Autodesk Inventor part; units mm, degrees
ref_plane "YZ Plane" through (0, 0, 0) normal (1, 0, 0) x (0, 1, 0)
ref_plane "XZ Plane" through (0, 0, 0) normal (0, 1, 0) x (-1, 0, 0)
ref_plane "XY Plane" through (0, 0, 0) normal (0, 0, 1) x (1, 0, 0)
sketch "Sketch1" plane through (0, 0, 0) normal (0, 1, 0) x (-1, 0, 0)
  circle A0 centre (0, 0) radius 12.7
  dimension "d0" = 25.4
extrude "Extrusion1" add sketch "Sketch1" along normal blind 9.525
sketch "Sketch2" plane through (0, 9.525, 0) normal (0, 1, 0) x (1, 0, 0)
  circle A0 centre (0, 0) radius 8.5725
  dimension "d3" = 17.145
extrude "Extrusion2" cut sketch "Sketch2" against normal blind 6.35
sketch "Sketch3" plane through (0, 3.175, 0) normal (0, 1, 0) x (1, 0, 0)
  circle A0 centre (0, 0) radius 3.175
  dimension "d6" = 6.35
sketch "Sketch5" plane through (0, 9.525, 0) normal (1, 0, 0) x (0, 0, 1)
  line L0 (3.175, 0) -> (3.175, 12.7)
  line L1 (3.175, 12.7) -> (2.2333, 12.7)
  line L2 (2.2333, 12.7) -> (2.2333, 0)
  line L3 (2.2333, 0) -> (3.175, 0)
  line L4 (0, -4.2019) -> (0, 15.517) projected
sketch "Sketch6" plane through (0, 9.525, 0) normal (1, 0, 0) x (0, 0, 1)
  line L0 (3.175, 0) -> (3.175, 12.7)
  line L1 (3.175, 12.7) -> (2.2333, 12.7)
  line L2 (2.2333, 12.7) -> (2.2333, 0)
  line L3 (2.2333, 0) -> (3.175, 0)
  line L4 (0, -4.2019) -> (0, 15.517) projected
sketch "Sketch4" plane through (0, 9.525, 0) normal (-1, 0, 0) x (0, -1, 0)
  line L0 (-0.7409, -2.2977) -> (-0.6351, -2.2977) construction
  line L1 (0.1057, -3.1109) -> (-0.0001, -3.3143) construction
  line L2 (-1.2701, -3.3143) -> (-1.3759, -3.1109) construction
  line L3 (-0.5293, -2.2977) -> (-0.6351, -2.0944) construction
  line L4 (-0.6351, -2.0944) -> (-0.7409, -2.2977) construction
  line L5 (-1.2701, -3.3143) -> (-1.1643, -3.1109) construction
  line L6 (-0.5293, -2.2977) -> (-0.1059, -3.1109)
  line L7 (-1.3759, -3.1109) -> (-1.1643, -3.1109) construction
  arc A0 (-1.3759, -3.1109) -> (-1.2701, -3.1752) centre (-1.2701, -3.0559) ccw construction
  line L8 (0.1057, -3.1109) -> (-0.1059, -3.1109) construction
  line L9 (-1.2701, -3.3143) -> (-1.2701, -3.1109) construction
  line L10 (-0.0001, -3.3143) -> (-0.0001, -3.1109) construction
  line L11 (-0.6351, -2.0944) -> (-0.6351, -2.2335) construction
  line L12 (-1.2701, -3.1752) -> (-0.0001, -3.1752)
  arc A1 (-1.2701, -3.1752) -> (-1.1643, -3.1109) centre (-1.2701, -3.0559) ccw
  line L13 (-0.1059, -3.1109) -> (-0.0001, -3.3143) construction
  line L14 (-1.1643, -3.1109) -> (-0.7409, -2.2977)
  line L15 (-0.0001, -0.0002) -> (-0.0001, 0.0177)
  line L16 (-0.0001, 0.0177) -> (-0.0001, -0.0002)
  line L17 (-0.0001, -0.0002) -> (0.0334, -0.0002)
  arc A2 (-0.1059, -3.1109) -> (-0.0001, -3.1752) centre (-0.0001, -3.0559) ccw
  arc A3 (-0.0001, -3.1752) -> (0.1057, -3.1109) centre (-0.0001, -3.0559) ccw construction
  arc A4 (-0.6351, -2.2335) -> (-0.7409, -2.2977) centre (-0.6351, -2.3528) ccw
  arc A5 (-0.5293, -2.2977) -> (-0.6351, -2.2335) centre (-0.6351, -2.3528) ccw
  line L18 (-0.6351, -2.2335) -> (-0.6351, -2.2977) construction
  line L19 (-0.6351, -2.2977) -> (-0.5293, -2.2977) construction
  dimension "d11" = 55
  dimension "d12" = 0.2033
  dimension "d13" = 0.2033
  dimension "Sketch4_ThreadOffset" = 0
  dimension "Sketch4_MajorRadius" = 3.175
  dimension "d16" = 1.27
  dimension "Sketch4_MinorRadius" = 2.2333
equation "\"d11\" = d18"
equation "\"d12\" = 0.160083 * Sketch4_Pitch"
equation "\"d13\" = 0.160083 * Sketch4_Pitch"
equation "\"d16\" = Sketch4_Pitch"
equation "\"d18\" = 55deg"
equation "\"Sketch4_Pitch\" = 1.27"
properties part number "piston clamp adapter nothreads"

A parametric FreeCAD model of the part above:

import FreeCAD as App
import Part
import Sketcher

V = App.Vector
Q = App.Units.Quantity

doc = App.newDocument("Part")
params = doc.addObject("Spreadsheet::Sheet", "Params")
for row, (alias, value) in enumerate([
    ("sketch1_diameter", "1 in"),
    ("pad1_length", "0.375 in"),
    ("sketch2_diameter", "0.675 in"),
    ("pocket1_length", "0.25 in"),
], start=1):
    params.set(f"A{row}", alias)
    params.set(f"B{row}", "=" + value)
    params.setAlias(f"B{row}", alias)

body = doc.addObject("PartDesign::Body", "Body")

# Sketch on XZ plane
sketch1 = body.newObject("Sketcher::SketchObject", "Sketch")
sketch1.AttachmentSupport = (doc.getObject("XZ_Plane"), [""])
sketch1.MapMode = "FlatFace"
sketch1.addGeometry(Part.Circle(V(0, 0, 0), V(0, 0, 1), 13), False)
sketch1.addConstraint([
    Sketcher.Constraint("Coincident", 0, 3, -1, 1),
    Sketcher.Constraint("Diameter", 0, Q("1 in")),
])
sketch1.setExpression("Constraints[1]", "Params.sketch1_diameter")
pad1 = body.newObject("PartDesign::Pad", "Pad")
pad1.Profile = sketch1
pad1.setExpression("Length", "Params.pad1_length")
pad1.Reversed = True

# Sketch on XZ plane
sketch2 = body.newObject("Sketcher::SketchObject", "Sketch001")
sketch2.AttachmentSupport = (doc.getObject("XZ_Plane"), [""])
sketch2.MapMode = "FlatFace"
sketch2.AttachmentOffset = App.Placement(V(0, 0, -0.375 * 25.4), App.Rotation())
sketch2.addGeometry(Part.Circle(V(0, 0, 0), V(0, 0, 1), 9), False)
sketch2.addConstraint([
    Sketcher.Constraint("Coincident", 0, 3, -1, 1),
    Sketcher.Constraint("Diameter", 0, Q("0.675 in")),
])
sketch2.setExpression("Constraints[1]", "Params.sketch2_diameter")
pocket1 = body.newObject("PartDesign::Pocket", "Pocket")
pocket1.Profile = sketch2
pocket1.setExpression("Length", "Params.pocket1_length")
pocket1.Reversed = True

doc.recompute()
